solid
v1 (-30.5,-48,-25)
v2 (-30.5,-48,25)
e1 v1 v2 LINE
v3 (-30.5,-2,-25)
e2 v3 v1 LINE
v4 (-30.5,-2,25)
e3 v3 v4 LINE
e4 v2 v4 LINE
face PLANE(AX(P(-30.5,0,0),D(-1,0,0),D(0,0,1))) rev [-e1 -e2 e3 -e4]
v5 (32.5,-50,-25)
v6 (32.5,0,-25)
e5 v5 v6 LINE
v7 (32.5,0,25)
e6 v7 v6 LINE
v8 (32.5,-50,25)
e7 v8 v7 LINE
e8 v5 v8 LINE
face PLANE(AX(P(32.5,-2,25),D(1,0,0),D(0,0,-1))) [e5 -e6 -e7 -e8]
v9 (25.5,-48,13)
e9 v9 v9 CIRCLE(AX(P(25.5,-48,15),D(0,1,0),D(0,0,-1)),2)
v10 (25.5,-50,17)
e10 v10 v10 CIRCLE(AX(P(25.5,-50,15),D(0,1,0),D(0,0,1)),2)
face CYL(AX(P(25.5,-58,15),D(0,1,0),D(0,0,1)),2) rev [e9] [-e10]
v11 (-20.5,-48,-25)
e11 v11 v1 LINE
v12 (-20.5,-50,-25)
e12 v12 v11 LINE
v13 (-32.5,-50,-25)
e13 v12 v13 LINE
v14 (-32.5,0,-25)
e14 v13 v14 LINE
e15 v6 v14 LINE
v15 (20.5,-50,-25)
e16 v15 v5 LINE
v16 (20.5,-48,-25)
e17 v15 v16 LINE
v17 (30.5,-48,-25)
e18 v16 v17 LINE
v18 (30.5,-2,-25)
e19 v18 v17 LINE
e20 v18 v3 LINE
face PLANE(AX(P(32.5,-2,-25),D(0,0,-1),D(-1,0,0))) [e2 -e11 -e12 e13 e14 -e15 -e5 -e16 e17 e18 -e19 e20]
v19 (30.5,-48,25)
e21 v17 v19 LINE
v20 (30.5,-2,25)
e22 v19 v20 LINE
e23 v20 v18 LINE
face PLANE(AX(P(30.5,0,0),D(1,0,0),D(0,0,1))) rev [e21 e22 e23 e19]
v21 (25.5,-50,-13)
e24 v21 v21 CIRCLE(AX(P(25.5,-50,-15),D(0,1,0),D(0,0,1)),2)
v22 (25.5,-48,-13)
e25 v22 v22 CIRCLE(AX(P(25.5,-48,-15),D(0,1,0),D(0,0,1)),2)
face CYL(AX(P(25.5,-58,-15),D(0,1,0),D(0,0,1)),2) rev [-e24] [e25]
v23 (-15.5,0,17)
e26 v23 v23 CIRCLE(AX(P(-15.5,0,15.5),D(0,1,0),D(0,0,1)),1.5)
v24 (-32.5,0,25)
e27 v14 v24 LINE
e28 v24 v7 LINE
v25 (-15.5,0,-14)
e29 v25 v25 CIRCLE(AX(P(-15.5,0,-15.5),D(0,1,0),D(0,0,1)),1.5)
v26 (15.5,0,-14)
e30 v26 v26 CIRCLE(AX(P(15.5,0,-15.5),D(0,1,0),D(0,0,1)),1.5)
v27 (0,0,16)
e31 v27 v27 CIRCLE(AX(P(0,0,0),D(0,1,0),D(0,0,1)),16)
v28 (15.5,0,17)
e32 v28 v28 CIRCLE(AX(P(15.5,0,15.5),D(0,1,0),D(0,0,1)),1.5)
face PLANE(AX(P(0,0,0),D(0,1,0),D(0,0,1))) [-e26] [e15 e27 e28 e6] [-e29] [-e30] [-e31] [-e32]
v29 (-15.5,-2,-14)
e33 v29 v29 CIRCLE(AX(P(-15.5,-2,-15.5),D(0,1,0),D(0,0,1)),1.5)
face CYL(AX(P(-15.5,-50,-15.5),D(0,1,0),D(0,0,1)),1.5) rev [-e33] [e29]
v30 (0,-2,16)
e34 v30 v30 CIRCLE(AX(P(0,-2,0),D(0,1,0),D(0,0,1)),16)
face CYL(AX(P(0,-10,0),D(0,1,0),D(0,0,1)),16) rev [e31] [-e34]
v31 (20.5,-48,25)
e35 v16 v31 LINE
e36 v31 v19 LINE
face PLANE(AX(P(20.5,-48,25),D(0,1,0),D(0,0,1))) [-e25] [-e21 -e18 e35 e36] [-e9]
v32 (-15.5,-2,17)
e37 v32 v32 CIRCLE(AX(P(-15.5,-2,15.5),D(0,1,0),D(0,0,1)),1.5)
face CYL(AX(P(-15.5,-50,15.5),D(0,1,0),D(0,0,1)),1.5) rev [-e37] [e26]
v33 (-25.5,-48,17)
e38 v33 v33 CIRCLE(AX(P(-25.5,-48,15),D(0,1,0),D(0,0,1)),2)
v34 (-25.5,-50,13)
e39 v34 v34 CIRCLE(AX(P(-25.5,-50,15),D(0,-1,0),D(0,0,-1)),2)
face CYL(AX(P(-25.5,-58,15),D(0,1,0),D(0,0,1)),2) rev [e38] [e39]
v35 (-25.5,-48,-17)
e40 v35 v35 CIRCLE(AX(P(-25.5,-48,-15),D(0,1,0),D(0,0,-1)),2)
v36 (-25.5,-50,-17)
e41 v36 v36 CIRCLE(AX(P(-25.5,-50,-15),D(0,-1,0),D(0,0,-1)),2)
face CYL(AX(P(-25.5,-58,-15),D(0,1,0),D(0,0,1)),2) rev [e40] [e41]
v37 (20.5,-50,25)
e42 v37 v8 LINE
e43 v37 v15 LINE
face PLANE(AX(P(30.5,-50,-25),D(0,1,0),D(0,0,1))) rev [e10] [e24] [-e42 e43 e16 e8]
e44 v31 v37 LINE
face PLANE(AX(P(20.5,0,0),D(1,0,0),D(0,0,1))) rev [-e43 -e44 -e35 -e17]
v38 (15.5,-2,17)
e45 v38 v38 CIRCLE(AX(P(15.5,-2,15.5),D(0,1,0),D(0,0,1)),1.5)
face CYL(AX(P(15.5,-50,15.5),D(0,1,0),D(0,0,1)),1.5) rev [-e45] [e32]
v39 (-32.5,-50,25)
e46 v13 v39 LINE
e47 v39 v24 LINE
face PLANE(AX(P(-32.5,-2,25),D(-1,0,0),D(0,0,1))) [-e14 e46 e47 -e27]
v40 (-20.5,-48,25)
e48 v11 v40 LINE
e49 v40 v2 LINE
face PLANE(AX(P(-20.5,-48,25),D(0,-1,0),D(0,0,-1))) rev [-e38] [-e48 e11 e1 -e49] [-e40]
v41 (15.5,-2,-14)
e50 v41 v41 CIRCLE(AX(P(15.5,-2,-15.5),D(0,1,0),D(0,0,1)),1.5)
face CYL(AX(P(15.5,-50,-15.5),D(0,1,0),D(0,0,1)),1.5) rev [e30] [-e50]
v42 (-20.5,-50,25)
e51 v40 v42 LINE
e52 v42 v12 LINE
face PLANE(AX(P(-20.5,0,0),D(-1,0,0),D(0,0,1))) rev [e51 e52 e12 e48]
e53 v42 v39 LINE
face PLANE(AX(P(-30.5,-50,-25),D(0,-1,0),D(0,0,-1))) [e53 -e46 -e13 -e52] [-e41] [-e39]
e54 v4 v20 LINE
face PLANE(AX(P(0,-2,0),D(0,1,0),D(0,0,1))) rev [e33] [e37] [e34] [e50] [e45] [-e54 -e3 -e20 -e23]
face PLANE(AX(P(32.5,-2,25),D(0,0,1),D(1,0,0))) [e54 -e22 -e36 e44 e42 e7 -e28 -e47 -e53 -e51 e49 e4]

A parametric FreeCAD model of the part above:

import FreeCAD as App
import Part
import Sketcher
from FreeCAD import Vector

doc = App.newDocument("Part")
body = doc.addObject("PartDesign::Body", "Body")

# Sketch on XZ plane
sketch1 = body.newObject("Sketcher::SketchObject", "Sketch")
sketch1.AttachmentSupport = (doc.getObject("XZ_Plane"), [""])
sketch1.MapMode = "FlatFace"
sketch1.addGeometry(Part.LineSegment(Vector(-32, -25, 0), Vector(-32, 25, 0)), False)
sketch1.addGeometry(Part.LineSegment(Vector(-32, 25, 0), Vector(32, 25, 0)), False)
sketch1.addGeometry(Part.LineSegment(Vector(32, 25, 0), Vector(32, -25, 0)), False)
sketch1.addGeometry(Part.LineSegment(Vector(32, -25, 0), Vector(-32, -25, 0)), False)
sketch1.addConstraint(Sketcher.Constraint("Coincident", 0, 2, 1, 1))
sketch1.addConstraint(Sketcher.Constraint("Coincident", 1, 2, 2, 1))
sketch1.addConstraint(Sketcher.Constraint("Coincident", 2, 2, 3, 1))
sketch1.addConstraint(Sketcher.Constraint("Coincident", 3, 2, 0, 1))
sketch1.addConstraint(Sketcher.Constraint("Vertical", 0))
sketch1.addConstraint(Sketcher.Constraint("Horizontal", 1))
sketch1.addConstraint(Sketcher.Constraint("Vertical", 2))
sketch1.addConstraint(Sketcher.Constraint("Horizontal", 3))
sketch1.addConstraint(Sketcher.Constraint("Symmetric", 0, 2, 2, 2, -1, 1))
sketch1.addConstraint(Sketcher.Constraint("DistanceX", 1, 1, 1, 2, 65.0))
sketch1.addConstraint(Sketcher.Constraint("DistanceY", 0, 1, 0, 2, 50.0))
pad1 = body.newObject("PartDesign::Pad", "Pad")
pad1.Profile = sketch1
pad1.Length = 2

# Sketch on YZ plane
sketch2 = body.newObject("Sketcher::SketchObject", "Sketch001")
sketch2.AttachmentSupport = (doc.getObject("YZ_Plane"), [""])
sketch2.MapMode = "FlatFace"
sketch2.AttachmentOffset = App.Placement(Vector(0, 0, -32.5), App.Rotation())
sketch2.addGeometry(Part.LineSegment(Vector(0, -25, 0), Vector(-50, -25, 0)), False)
sketch2.addGeometry(Part.LineSegment(Vector(-50, -25, 0), Vector(-50, 25, 0)), False)
sketch2.addGeometry(Part.LineSegment(Vector(-50, 25, 0), Vector(0, 25, 0)), False)
sketch2.addGeometry(Part.LineSegment(Vector(0, 25, 0), Vector(0, -25, 0)), False)
sketch2.addConstraint(Sketcher.Constraint("Coincident", 0, 2, 1, 1))
sketch2.addConstraint(Sketcher.Constraint("Coincident", 1, 2, 2, 1))
sketch2.addConstraint(Sketcher.Constraint("Coincident", 2, 2, 3, 1))
sketch2.addConstraint(Sketcher.Constraint("Coincident", 3, 2, 0, 1))
sketch2.addConstraint(Sketcher.Constraint("Horizontal", 0))
sketch2.addConstraint(Sketcher.Constraint("Vertical", 1))
sketch2.addConstraint(Sketcher.Constraint("Horizontal", 2))
sketch2.addConstraint(Sketcher.Constraint("Vertical", 3))
sketch2.addConstraint(Sketcher.Constraint("Symmetric", 2, 2, 3, 2, -1, 1))
sketch2.addConstraint(Sketcher.Constraint("Equal", 2, 1))
sketch2.addConstraint(Sketcher.Constraint("DistanceX", 0, 2, 0, 1, 50.0))
pad2 = body.newObject("PartDesign::Pad", "Pad001")
pad2.Profile = sketch2
pad2.Length = 2

# Sketch on YZ plane
sketch3 = body.newObject("Sketcher::SketchObject", "Sketch002")
sketch3.AttachmentSupport = (doc.getObject("YZ_Plane"), [""])
sketch3.MapMode = "FlatFace"
sketch3.AttachmentOffset = App.Placement(Vector(0, 0, -30.5), App.Rotation())
sketch3.addGeometry(Part.LineSegment(Vector(-48, 25, 0), Vector(-50, 25, 0)), False)
sketch3.addGeometry(Part.LineSegment(Vector(-50, 25, 0), Vector(-50, -25, 0)), False)
sketch3.addGeometry(Part.LineSegment(Vector(-50, -25, 0), Vector(-48, -25, 0)), False)
sketch3.addGeometry(Part.LineSegment(Vector(-48, -25, 0), Vector(-48, 25, 0)), False)
sketch3.addConstraint(Sketcher.Constraint("Coincident", 0, 2, 1, 1))
sketch3.addConstraint(Sketcher.Constraint("Coincident", 1, 2, 2, 1))
sketch3.addConstraint(Sketcher.Constraint("Coincident", 2, 2, 3, 1))
sketch3.addConstraint(Sketcher.Constraint("Coincident", 3, 2, 0, 1))
sketch3.addConstraint(Sketcher.Constraint("Horizontal", 0))
sketch3.addConstraint(Sketcher.Constraint("Vertical", 1))
sketch3.addConstraint(Sketcher.Constraint("Horizontal", 2))
sketch3.addConstraint(Sketcher.Constraint("Vertical", 3))
sketch3.addConstraint(Sketcher.Constraint("DistanceX", 0, 2, 0, 1, 2.0))
sketch3.addConstraint(Sketcher.Constraint("DistanceY", 1, 2, 1, 1, 50.0))
sketch3.addConstraint(Sketcher.Constraint("DistanceX", 0, 2, -1, 1, 50.0))
sketch3.addConstraint(Sketcher.Constraint("DistanceY", -1, 1, 0, 2, 25.0))
pad3 = body.newObject("PartDesign::Pad", "Pad002")
pad3.Profile = sketch3
pad3.Length = 10
doc.recompute()

mirrored = body.newObject("PartDesign::Mirrored", "Mirrored")
mirrored.Originals = [pad2, pad3]
mirrored.MirrorPlane = (doc.getObject("YZ_Plane"), [""])
body.Tip = mirrored

# Sketch on XZ plane
sketch4 = body.newObject("Sketcher::SketchObject", "Sketch003")
sketch4.AttachmentSupport = (doc.getObject("XZ_Plane"), [""])
sketch4.MapMode = "FlatFace"
sketch4.addGeometry(Part.Circle(Vector(-15.5, -15.5, 0), Vector(0, 0, 1), 1.5), False)
sketch4.addGeometry(Part.Circle(Vector(-15.5, 15.5, 0), Vector(0, 0, 1), 1.5), False)
sketch4.addGeometry(Part.Circle(Vector(15.5, 15.5, 0), Vector(0, 0, 1), 1.5), False)
sketch4.addGeometry(Part.Circle(Vector(15.5, -15.5, 0), Vector(0, 0, 1), 1.5), False)
sketch4.addConstraint(Sketcher.Constraint("Equal", 0, 1))
sketch4.addConstraint(Sketcher.Constraint("Equal", 1, 2))
sketch4.addConstraint(Sketcher.Constraint("Equal", 2, 3))
sketch4.addConstraint(Sketcher.Constraint("Symmetric", 0, 3, 2, 3, -1, 1))
sketch4.addConstraint(Sketcher.Constraint("Symmetric", 1, 3, 3, 3, -1, 1))
sketch4.addConstraint(Sketcher.Constraint("Symmetric", 1, 3, 2, 3, -2))
sketch4.addConstraint(Sketcher.Constraint("Diameter", 0, 3.0))
sketch4.addConstraint(Sketcher.Constraint("DistanceY", 0, 3, 1, 3, 31.0))
sketch4.addConstraint(Sketcher.Constraint("DistanceX", 1, 3, 2, 3, 31.0))
pocket1 = body.newObject("PartDesign::Pocket", "Pocket")
pocket1.Profile = sketch4
pocket1.Type = "ThroughAll"
pocket1.Reversed = True

# Sketch on XZ plane
sketch5 = body.newObject("Sketcher::SketchObject", "Sketch004")
sketch5.AttachmentSupport = (doc.getObject("XZ_Plane"), [""])
sketch5.MapMode = "FlatFace"
sketch5.addGeometry(Part.Circle(Vector(0, 0, 0), Vector(0, 0, 1), 16), False)
sketch5.addConstraint(Sketcher.Constraint("Coincident", 0, 3, -1, 1))
sketch5.addConstraint(Sketcher.Constraint("Diameter", 0, 32.0))
pocket2 = body.newObject("PartDesign::Pocket", "Pocket001")
pocket2.Profile = sketch5
pocket2.Length = 10
pocket2.Reversed = True

# Sketch on XZ plane
sketch6 = body.newObject("Sketcher::SketchObject", "Sketch005")
sketch6.AttachmentSupport = (doc.getObject("XZ_Plane"), [""])
sketch6.MapMode = "FlatFace"
sketch6.AttachmentOffset = App.Placement(Vector(0, 0, 48), App.Rotation())
sketch6.addGeometry(Part.Circle(Vector(-25.5, 15, 0), Vector(0, 0, 1), 2), False)
sketch6.addGeometry(Part.Circle(Vector(25.5, 15, 0), Vector(0, 0, 1), 2), False)
sketch6.addGeometry(Part.Circle(Vector(25.5, -15, 0), Vector(0, 0, 1), 2), False)
sketch6.addGeometry(Part.Circle(Vector(-25.5, -15, 0), Vector(0, 0, 1), 2), False)
sketch6.addConstraint(Sketcher.Constraint("Equal", 0, 1))
sketch6.addConstraint(Sketcher.Constraint("Equal", 1, 2))
sketch6.addConstraint(Sketcher.Constraint("Equal", 2, 3))
sketch6.addConstraint(Sketcher.Constraint("Symmetric", 0, 3, 2, 3, -1, 1))
sketch6.addConstraint(Sketcher.Constraint("Symmetric", 1, 3, 3, 3, -1, 1))
sketch6.addConstraint(Sketcher.Constraint("Symmetric", 0, 3, 1, 3, -2))
sketch6.addConstraint(Sketcher.Constraint("Diameter", 0, 4.0))
sketch6.addConstraint(Sketcher.Constraint("DistanceY", -1, 1, 0, 3, 15.0))
sketch6.addConstraint(Sketcher.Constraint("DistanceX", 0, 3, 1, 3, 51.0))
pocket3 = body.newObject("PartDesign::Pocket", "Pocket002")
pocket3.Profile = sketch6
pocket3.Length = 10
pocket3.Reversed = True

doc.recompute()
